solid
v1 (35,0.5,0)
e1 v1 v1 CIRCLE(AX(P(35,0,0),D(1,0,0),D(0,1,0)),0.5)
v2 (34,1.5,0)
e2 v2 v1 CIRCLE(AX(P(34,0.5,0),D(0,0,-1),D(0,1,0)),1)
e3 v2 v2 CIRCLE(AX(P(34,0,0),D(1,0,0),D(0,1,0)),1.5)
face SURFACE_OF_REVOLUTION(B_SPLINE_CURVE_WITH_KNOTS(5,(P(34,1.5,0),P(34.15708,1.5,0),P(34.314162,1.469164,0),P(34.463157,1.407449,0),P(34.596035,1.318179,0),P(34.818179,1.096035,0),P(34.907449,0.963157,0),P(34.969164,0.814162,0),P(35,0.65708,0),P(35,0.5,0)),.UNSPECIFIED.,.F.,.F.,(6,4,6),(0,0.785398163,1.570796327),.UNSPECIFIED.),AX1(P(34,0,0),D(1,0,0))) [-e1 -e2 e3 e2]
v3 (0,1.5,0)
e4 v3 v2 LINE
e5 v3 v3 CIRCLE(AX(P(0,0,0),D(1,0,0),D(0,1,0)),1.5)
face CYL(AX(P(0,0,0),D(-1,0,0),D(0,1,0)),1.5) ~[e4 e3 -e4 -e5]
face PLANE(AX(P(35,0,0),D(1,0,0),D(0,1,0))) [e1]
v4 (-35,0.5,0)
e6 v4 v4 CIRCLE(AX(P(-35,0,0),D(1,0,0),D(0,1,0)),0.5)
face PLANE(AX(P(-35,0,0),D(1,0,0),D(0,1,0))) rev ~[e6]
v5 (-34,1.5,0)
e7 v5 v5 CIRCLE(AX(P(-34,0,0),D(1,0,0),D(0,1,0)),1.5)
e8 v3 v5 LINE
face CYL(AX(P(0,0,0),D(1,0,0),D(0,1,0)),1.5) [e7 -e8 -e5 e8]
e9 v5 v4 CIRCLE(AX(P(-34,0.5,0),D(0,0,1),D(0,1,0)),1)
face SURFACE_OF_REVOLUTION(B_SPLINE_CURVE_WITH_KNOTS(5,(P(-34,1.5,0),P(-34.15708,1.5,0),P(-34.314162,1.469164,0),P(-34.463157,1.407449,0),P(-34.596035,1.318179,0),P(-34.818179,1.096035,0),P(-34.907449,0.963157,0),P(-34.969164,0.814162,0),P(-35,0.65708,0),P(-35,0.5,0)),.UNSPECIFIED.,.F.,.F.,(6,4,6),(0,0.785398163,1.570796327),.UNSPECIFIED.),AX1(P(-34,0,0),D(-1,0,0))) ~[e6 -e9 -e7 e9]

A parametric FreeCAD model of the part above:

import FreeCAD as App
import Part
import Sketcher
from FreeCAD import Vector


def edges_at(feature, points):
    """Names of the edges that pass closest to the given points."""
    edges = feature.Shape.Edges
    near = lambda p: min(range(len(edges)), key=lambda i: edges[i].distToShape(Part.Vertex(*p))[0])
    return sorted({f"Edge{near(p) + 1}" for p in points})

doc = App.newDocument("Part")
body = doc.addObject("PartDesign::Body", "Body")

# Sketch on YZ plane
sketch1 = doc.addObject("Sketcher::SketchObject", "Sketch")
body.addObject(sketch1)
sketch1.AttachmentSupport = (doc.YZ_Plane, [""])
sketch1.MapMode = "FlatFace"
sketch1.addGeometry(Part.Circle(Vector(0, 0, 0), Vector(0, 0, 1), 1.5), False)
sketch1.addConstraint([
    Sketcher.Constraint("Coincident", 0, 3, -1, 1),
    Sketcher.Constraint("Diameter", 0, 3.0),
])
pad1 = doc.addObject("PartDesign::Pad", "Pad")
body.addObject(pad1)
pad1.Profile = sketch1
pad1.Length = 70
pad1.Midplane = True
doc.recompute()

fillet = doc.addObject("PartDesign::Fillet", "Fillet")
body.addObject(fillet)
fillet.Base = (pad1, edges_at(pad1, [(-35, -1.5, 0), (35, -1.5, 0)]))
fillet.Radius = 1

doc.recompute()
